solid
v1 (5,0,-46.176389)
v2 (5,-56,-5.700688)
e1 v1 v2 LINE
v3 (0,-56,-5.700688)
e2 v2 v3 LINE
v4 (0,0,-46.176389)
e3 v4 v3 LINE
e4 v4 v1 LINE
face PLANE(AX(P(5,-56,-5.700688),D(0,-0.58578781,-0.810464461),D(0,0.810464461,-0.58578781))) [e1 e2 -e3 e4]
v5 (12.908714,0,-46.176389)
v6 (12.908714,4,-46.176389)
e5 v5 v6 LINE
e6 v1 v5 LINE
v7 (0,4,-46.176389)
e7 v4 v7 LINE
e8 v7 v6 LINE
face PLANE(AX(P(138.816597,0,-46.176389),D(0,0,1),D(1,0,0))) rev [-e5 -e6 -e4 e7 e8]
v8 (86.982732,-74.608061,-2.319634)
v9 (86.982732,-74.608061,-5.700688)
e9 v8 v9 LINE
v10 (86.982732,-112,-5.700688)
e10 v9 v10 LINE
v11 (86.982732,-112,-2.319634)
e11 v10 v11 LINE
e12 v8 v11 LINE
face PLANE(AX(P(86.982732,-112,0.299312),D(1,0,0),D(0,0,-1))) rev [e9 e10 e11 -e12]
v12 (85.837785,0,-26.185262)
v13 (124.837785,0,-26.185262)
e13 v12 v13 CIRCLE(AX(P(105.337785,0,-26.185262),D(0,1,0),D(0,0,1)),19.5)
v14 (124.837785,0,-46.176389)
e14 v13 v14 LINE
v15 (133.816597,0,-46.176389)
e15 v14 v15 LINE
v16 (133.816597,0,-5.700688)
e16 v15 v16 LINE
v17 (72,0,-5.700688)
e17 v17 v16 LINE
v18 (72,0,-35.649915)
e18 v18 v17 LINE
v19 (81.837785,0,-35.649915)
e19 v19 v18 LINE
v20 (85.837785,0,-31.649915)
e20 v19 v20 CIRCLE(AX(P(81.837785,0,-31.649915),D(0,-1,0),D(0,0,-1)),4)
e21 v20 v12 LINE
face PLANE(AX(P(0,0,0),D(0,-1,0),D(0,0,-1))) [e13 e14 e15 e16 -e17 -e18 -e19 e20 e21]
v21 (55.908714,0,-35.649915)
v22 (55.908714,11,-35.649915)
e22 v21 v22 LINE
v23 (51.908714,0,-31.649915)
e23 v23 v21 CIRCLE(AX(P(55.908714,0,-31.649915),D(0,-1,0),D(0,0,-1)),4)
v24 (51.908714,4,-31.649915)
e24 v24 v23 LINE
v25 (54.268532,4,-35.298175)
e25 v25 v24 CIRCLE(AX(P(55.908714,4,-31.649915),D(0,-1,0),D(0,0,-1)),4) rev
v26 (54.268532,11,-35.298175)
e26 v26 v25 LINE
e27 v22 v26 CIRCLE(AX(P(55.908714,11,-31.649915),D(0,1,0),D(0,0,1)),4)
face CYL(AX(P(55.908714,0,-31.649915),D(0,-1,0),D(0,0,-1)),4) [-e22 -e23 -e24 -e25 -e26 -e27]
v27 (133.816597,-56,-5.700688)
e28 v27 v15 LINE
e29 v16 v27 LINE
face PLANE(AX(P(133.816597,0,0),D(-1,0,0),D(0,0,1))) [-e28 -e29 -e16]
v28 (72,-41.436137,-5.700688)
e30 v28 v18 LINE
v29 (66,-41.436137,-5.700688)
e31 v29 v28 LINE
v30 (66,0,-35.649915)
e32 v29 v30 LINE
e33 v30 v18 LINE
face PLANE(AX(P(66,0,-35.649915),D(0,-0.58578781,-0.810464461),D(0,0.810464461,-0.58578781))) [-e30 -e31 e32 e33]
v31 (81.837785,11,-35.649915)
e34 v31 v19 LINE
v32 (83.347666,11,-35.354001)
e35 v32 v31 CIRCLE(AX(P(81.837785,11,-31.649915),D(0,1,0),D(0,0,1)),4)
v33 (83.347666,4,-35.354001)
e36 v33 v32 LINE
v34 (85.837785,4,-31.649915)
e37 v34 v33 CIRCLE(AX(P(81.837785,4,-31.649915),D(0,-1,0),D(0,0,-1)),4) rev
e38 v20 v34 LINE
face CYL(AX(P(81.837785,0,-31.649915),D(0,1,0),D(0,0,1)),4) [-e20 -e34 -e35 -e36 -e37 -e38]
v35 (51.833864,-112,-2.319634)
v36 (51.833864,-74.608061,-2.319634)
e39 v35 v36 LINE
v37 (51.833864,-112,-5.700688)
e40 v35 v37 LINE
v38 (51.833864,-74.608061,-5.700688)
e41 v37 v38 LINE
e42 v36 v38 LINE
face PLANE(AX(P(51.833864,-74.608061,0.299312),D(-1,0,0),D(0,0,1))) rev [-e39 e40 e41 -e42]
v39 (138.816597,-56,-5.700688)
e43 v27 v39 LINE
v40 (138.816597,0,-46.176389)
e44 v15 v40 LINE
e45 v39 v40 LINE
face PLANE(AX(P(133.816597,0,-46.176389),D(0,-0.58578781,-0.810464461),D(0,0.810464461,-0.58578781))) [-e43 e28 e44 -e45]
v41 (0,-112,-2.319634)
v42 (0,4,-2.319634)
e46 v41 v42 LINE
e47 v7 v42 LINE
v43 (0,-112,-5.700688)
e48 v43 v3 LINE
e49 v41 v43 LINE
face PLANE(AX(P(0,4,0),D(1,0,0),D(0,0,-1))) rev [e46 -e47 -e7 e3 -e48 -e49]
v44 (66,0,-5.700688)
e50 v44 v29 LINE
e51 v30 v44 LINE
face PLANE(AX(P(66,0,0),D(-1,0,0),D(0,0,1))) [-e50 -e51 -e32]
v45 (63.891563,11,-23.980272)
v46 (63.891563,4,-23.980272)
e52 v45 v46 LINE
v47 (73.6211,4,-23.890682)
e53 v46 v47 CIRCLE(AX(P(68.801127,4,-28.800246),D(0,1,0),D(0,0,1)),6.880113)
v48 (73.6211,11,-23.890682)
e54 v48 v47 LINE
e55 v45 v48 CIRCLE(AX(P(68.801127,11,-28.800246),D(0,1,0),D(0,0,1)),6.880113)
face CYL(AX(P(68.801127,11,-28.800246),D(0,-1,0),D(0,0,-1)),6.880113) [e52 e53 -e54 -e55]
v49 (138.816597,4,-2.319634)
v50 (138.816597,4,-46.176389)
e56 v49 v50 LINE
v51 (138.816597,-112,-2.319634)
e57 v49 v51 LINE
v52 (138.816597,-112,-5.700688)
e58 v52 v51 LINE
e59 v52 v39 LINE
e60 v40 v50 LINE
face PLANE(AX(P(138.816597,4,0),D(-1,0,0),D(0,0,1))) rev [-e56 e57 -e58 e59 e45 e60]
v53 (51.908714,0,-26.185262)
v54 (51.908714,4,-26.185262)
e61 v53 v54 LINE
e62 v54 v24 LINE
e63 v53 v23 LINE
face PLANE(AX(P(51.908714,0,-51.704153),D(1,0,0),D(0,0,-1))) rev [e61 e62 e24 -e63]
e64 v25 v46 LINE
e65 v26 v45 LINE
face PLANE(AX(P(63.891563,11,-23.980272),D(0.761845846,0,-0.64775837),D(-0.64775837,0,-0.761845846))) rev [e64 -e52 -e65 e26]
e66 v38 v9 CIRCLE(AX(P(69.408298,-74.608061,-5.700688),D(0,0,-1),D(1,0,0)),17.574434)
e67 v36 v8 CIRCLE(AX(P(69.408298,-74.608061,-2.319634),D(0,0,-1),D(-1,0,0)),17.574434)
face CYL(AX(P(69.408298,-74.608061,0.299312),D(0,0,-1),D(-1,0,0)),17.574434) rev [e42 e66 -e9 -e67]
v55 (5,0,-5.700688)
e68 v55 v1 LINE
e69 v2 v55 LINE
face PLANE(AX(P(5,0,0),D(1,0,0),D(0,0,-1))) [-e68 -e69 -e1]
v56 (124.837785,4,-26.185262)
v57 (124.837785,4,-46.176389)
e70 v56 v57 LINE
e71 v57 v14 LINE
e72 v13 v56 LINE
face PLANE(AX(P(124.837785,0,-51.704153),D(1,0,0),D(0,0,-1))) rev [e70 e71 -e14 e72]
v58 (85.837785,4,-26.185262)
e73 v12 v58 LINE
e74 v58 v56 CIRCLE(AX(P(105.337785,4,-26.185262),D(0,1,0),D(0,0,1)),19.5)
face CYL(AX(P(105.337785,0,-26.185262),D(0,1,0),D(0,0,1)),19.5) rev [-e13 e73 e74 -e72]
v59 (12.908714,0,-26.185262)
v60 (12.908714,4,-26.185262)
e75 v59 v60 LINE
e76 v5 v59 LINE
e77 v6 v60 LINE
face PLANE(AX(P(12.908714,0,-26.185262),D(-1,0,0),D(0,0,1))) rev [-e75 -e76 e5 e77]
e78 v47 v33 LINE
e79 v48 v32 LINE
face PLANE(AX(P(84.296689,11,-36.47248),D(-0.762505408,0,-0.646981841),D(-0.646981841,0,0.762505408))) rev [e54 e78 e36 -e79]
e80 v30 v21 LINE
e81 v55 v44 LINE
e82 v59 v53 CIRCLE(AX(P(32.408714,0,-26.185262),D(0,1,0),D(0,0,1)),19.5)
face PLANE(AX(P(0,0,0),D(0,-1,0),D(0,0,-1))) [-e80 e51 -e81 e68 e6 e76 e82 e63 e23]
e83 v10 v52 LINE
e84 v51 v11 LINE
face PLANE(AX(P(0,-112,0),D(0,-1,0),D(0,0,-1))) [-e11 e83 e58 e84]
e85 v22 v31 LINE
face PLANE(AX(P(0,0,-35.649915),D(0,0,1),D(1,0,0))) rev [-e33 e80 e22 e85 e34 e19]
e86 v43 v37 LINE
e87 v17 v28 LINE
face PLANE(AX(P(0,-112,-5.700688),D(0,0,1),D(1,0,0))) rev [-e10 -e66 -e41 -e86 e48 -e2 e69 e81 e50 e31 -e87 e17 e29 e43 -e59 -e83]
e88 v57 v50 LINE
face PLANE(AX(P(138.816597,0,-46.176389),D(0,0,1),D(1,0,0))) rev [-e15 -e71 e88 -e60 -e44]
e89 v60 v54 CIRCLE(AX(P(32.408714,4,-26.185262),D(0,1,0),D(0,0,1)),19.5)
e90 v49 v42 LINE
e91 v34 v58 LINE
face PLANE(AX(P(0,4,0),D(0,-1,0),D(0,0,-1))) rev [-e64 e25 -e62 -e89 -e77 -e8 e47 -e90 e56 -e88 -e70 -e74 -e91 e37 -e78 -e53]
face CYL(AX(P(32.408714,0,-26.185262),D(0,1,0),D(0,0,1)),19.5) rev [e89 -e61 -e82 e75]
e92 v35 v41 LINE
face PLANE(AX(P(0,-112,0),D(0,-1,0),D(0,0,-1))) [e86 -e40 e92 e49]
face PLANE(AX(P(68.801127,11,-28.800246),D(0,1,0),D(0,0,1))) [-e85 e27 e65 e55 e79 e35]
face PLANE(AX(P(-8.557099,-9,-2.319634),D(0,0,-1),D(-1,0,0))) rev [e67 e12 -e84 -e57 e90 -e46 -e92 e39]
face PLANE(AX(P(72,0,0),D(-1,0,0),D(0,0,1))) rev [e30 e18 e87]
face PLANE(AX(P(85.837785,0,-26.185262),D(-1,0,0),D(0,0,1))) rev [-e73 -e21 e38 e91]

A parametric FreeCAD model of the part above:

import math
import FreeCAD as App
import Part
import Sketcher
Q = App.Units.Quantity


def edges_at(feature, points):
    """Names of the edges that pass closest to the given points."""
    edges = feature.Shape.Edges
    near = lambda p: min(range(len(edges)), key=lambda i: edges[i].distToShape(Part.Vertex(*p))[0])
    return sorted({f"Edge{near(p) + 1}" for p in points})

doc = App.newDocument("Part")
body = doc.addObject("PartDesign::Body", "Body")

sketch1 = body.newObject("Sketcher::SketchObject", "Sketch")
sketch1.AttachmentSupport = (doc.getObject("XZ_Plane"), [""])
sketch1.MapMode = "FlatFace"
sketch1.addGeometry(Part.LineSegment(App.Vector(0, -51.704153, 0), App.Vector(0, 0, 0)), False)
sketch1.addGeometry(Part.LineSegment(App.Vector(0, 0, 0), App.Vector(138.816597, 0, 0)), False)
sketch1.addGeometry(Part.LineSegment(App.Vector(138.816597, 0, 0), App.Vector(138.816597, -51.704153, 0)), False)
sketch1.addGeometry(Part.LineSegment(App.Vector(138.816597, -51.704153, 0), App.Vector(0, -51.704153, 0)), False)
sketch1.addConstraint(Sketcher.Constraint("Coincident", 0, 2, 1, 1))
sketch1.addConstraint(Sketcher.Constraint("Coincident", 1, 2, 2, 1))
sketch1.addConstraint(Sketcher.Constraint("Coincident", 2, 2, 3, 1))
sketch1.addConstraint(Sketcher.Constraint("Coincident", 3, 2, 0, 1))
sketch1.addConstraint(Sketcher.Constraint("Vertical", 0))
sketch1.addConstraint(Sketcher.Constraint("Horizontal", 1))
sketch1.addConstraint(Sketcher.Constraint("Vertical", 2))
sketch1.addConstraint(Sketcher.Constraint("Horizontal", 3))
sketch1.addConstraint(Sketcher.Constraint("Coincident", 0, 2, -1, 1))
sketch1.addConstraint(Sketcher.Constraint("DistanceX", 1, 1, 1, 2, Q("138.816597 mm")))
sketch1.addConstraint(Sketcher.Constraint("DistanceY", 0, 1, 0, 2, Q("51.704153 mm")))
pad1 = body.newObject("PartDesign::Pad", "Pad")
pad1.Profile = sketch1
pad1.Length = 4
pad1.Reversed = True

sketch2 = body.newObject("Sketcher::SketchObject", "Sketch001")
sketch2.AttachmentSupport = (doc.getObject("XZ_Plane"), [""])
sketch2.MapMode = "FlatFace"
sketch2.AttachmentOffset = App.Placement(App.Vector(0, 0, -4), App.Rotation())
sketch2.addGeometry(Part.Circle(App.Vector(32.408714, -26.185262, 0), App.Vector(0, 0, 1), 19.5), False)
sketch2.addGeometry(Part.Circle(App.Vector(105.337785, -26.185262, 0), App.Vector(0, 0, 1), 19.5), False)
sketch2.addConstraint(Sketcher.Constraint("Equal", 0, 1))
sketch2.addConstraint(Sketcher.Constraint("Horizontal", 0, 3, 1, 3))
sketch2.addConstraint(Sketcher.Constraint("Diameter", 0, Q("39 mm")))
sketch2.addConstraint(Sketcher.Constraint("DistanceY", 0, 3, -1, 1, Q("26.185262 mm")))
sketch2.addConstraint(Sketcher.Constraint("DistanceX", 0, 3, 1, 3, Q("72.929071 mm")))
sketch2.addConstraint(Sketcher.Constraint("DistanceX", -1, 1, 0, 3, Q("32.408714 mm")))
pocket1 = body.newObject("PartDesign::Pocket", "Pocket")
pocket1.Profile = sketch2
pocket1.Length = 4
pocket1.Reversed = True

sketch3 = body.newObject("Sketcher::SketchObject", "Sketch002")
sketch3.AttachmentSupport = (doc.getObject("XZ_Plane"), [""])
sketch3.MapMode = "FlatFace"
sketch3.AttachmentOffset = App.Placement(App.Vector(0, 0, -4), App.Rotation())
sketch3.addGeometry(Part.LineSegment(App.Vector(12.908714, -51.704153, 0), App.Vector(12.908714, -26.185262, 0)), False)
sketch3.addGeometry(Part.LineSegment(App.Vector(12.908714, -26.185262, 0), App.Vector(51.908714, -26.185262, 0)), False)
sketch3.addGeometry(Part.LineSegment(App.Vector(51.908714, -26.185262, 0), App.Vector(51.908714, -51.704153, 0)), False)
sketch3.addGeometry(Part.LineSegment(App.Vector(51.908714, -51.704153, 0), App.Vector(12.908714, -51.704153, 0)), False)
sketch3.addGeometry(Part.LineSegment(App.Vector(85.837785, -51.704153, 0), App.Vector(85.837785, -26.185262, 0)), False)
sketch3.addGeometry(Part.LineSegment(App.Vector(85.837785, -26.185262, 0), App.Vector(124.837785, -26.185262, 0)), False)
sketch3.addGeometry(Part.LineSegment(App.Vector(124.837785, -26.185262, 0), App.Vector(124.837785, -51.704153, 0)), False)
sketch3.addGeometry(Part.LineSegment(App.Vector(124.837785, -51.704153, 0), App.Vector(85.837785, -51.704153, 0)), False)
sketch3.addConstraint(Sketcher.Constraint("Coincident", 0, 2, 1, 1))
sketch3.addConstraint(Sketcher.Constraint("Coincident", 1, 2, 2, 1))
sketch3.addConstraint(Sketcher.Constraint("Coincident", 2, 2, 3, 1))
sketch3.addConstraint(Sketcher.Constraint("Coincident", 3, 2, 0, 1))
sketch3.addConstraint(Sketcher.Constraint("Coincident", 4, 2, 5, 1))
sketch3.addConstraint(Sketcher.Constraint("Coincident", 5, 2, 6, 1))
sketch3.addConstraint(Sketcher.Constraint("Coincident", 6, 2, 7, 1))
sketch3.addConstraint(Sketcher.Constraint("Coincident", 7, 2, 4, 1))
sketch3.addConstraint(Sketcher.Constraint("Vertical", 0))
sketch3.addConstraint(Sketcher.Constraint("Horizontal", 1))
sketch3.addConstraint(Sketcher.Constraint("Vertical", 2))
sketch3.addConstraint(Sketcher.Constraint("Horizontal", 3))
sketch3.addConstraint(Sketcher.Constraint("Vertical", 4))
sketch3.addConstraint(Sketcher.Constraint("Horizontal", 5))
sketch3.addConstraint(Sketcher.Constraint("Vertical", 6))
sketch3.addConstraint(Sketcher.Constraint("Horizontal", 7))
sketch3.addConstraint(Sketcher.Constraint("Horizontal", 1, 2, 4, 2))
sketch3.addConstraint(Sketcher.Constraint("Horizontal", 3, 2, 6, 2))
sketch3.addConstraint(Sketcher.Constraint("Equal", 3, 5))
sketch3.addConstraint(Sketcher.Constraint("DistanceX", 1, 1, 1, 2, Q("39 mm")))
sketch3.addConstraint(Sketcher.Constraint("DistanceY", 0, 1, 0, 2, Q("25.518891 mm")))
sketch3.addConstraint(Sketcher.Constraint("DistanceY", 0, 2, -1, 1, Q("26.185262 mm")))
sketch3.addConstraint(Sketcher.Constraint("DistanceX", 1, 2, 4, 2, Q("33.929071 mm")))
sketch3.addConstraint(Sketcher.Constraint("DistanceX", -1, 1, 0, 2, Q("12.908714 mm")))
pocket2 = body.newObject("PartDesign::Pocket", "Pocket001")
pocket2.Profile = sketch3
pocket2.Length = 4
pocket2.Reversed = True

sketch4 = body.newObject("Sketcher::SketchObject", "Sketch003")
sketch4.AttachmentSupport = (doc.getObject("XZ_Plane"), [""])
sketch4.MapMode = "FlatFace"
sketch4.AttachmentOffset = App.Placement(App.Vector(0, 0, -4), App.Rotation())
sketch4.addGeometry(Part.LineSegment(App.Vector(0, -51.704153, 0), App.Vector(0, -46.176389, 0)), False)
sketch4.addGeometry(Part.LineSegment(App.Vector(0, -46.176389, 0), App.Vector(138.816597, -46.176389, 0)), False)
sketch4.addGeometry(Part.LineSegment(App.Vector(138.816597, -46.176389, 0), App.Vector(138.816597, -51.704153, 0)), False)
sketch4.addGeometry(Part.LineSegment(App.Vector(138.816597, -51.704153, 0), App.Vector(0, -51.704153, 0)), False)
sketch4.addConstraint(Sketcher.Constraint("Coincident", 0, 2, 1, 1))
sketch4.addConstraint(Sketcher.Constraint("Coincident", 1, 2, 2, 1))
sketch4.addConstraint(Sketcher.Constraint("Coincident", 2, 2, 3, 1))
sketch4.addConstraint(Sketcher.Constraint("Coincident", 3, 2, 0, 1))
sketch4.addConstraint(Sketcher.Constraint("Vertical", 0))
sketch4.addConstraint(Sketcher.Constraint("Horizontal", 1))
sketch4.addConstraint(Sketcher.Constraint("Vertical", 2))
sketch4.addConstraint(Sketcher.Constraint("Horizontal", 3))
sketch4.addConstraint(Sketcher.Constraint("PointOnObject", 0, 2, -2))
sketch4.addConstraint(Sketcher.Constraint("DistanceX", 1, 1, 1, 2, Q("138.816597 mm")))
sketch4.addConstraint(Sketcher.Constraint("DistanceY", 0, 1, 0, 2, Q("5.527763 mm")))
sketch4.addConstraint(Sketcher.Constraint("DistanceY", 0, 2, -1, 1, Q("46.176389 mm")))
pocket3 = body.newObject("PartDesign::Pocket", "Pocket002")
pocket3.Profile = sketch4
pocket3.Length = 4
pocket3.Reversed = True

sketch5 = body.newObject("Sketcher::SketchObject", "Sketch004")
sketch5.AttachmentSupport = (doc.getObject("XZ_Plane"), [""])
sketch5.MapMode = "FlatFace"
sketch5.AttachmentOffset = App.Placement(App.Vector(0, 0, -4), App.Rotation())
sketch5.addGeometry(Part.LineSegment(App.Vector(49.90401, -40.387296, 0), App.Vector(51.928251, -38.363055, 0)), False)
sketch5.addGeometry(Part.LineSegment(App.Vector(51.928251, -38.363055, 0), App.Vector(53.389948, -36.649915, 0)), False)
sketch5.addGeometry(Part.LineSegment(App.Vector(53.389948, -36.649915, 0), App.Vector(84.416557, -36.649915, 0)), False)
sketch5.addGeometry(Part.LineSegment(App.Vector(84.416557, -36.649915, 0), App.Vector(85.857322, -38.348254, 0)), False)
sketch5.addGeometry(Part.LineSegment(App.Vector(85.857322, -38.348254, 0), App.Vector(87.953832, -40.819568, 0)), False)
sketch5.addGeometry(Part.LineSegment(App.Vector(87.953832, -40.819568, 0), App.Vector(88.230996, -41.29784, 0)), False)
sketch5.addGeometry(Part.LineSegment(App.Vector(88.230996, -41.29784, 0), App.Vector(88.976344, -49.123988, 0)), False)
sketch5.addGeometry(Part.LineSegment(App.Vector(88.976344, -49.123988, 0), App.Vector(49.90401, -49.123988, 0)), False)
sketch5.addGeometry(Part.LineSegment(App.Vector(49.90401, -49.123988, 0), App.Vector(49.90401, -40.387296, 0)), False)
sketch5.addConstraint(Sketcher.Constraint("Coincident", 0, 2, 1, 1))
sketch5.addConstraint(Sketcher.Constraint("Coincident", 1, 2, 2, 1))
sketch5.addConstraint(Sketcher.Constraint("Coincident", 2, 2, 3, 1))
sketch5.addConstraint(Sketcher.Constraint("Coincident", 3, 2, 4, 1))
sketch5.addConstraint(Sketcher.Constraint("Coincident", 4, 2, 5, 1))
sketch5.addConstraint(Sketcher.Constraint("Coincident", 5, 2, 6, 1))
sketch5.addConstraint(Sketcher.Constraint("Coincident", 6, 2, 7, 1))
sketch5.addConstraint(Sketcher.Constraint("Coincident", 7, 2, 8, 1))
sketch5.addConstraint(Sketcher.Constraint("Coincident", 8, 2, 0, 1))
sketch5.addConstraint(Sketcher.Constraint("Horizontal", 2))
sketch5.addConstraint(Sketcher.Constraint("Horizontal", 7))
sketch5.addConstraint(Sketcher.Constraint("Vertical", 8))
sketch5.addConstraint(Sketcher.Constraint("Parallel", 3, 4))
sketch5.addConstraint(Sketcher.Constraint("Angle", 0, Q("45 deg")))
sketch5.addConstraint(Sketcher.Constraint("DistanceX", 2, 1, 2, 2, Q("31.026609 mm")))
sketch5.addConstraint(Sketcher.Constraint("DistanceY", 8, 1, 8, 2, Q("8.736692 mm")))
sketch5.addConstraint(Sketcher.Constraint("DistanceY", 0, 2, 3, 2, Q("0.014802 mm")))
sketch5.addConstraint(Sketcher.Constraint("Distance", 0, Q("2.862708 mm")))
sketch5.addConstraint(Sketcher.Constraint("Distance", 1, Q("2.251979 mm")))
sketch5.addConstraint(Sketcher.Constraint("Distance", 3, Q("2.227141 mm")))
sketch5.addConstraint(Sketcher.Constraint("Distance", 6, Q("7.861561 mm")))
sketch5.addConstraint(Sketcher.Constraint("DistanceX", 7, 2, 7, 1, Q("39.072334 mm")))
sketch5.addConstraint(Sketcher.Constraint("DistanceX", -1, 1, 0, 2, Q("51.928251 mm")))
sketch5.addConstraint(Sketcher.Constraint("DistanceX", -1, 1, 1, 2, Q("53.389948 mm")))
sketch5.addConstraint(Sketcher.Constraint("DistanceY", 4, 2, -1, 1, Q("40.819568 mm")))
sketch5.addConstraint(Sketcher.Constraint("DistanceY", 5, 2, -1, 1, Q("41.29784 mm")))
sketch5.addConstraint(Sketcher.Constraint("DistanceX", 3, 2, 4, 2, Q("2.09651 mm")))
pocket4 = body.newObject("PartDesign::Pocket", "Pocket003")
pocket4.Profile = sketch5
pocket4.Length = 4
pocket4.Reversed = True

sketch6 = body.newObject("Sketcher::SketchObject", "Sketch005")
sketch6.AttachmentSupport = (doc.getObject("XZ_Plane"), [""])
sketch6.MapMode = "FlatFace"
sketch6.AttachmentOffset = App.Placement(App.Vector(0, 0, -4), App.Rotation())
sketch6.addGeometry(Part.LineSegment(App.Vector(84.296689, -36.47248, 0), App.Vector(53.270081, -36.47248, 0)), False)
sketch6.addGeometry(Part.LineSegment(App.Vector(53.270081, -36.47248, 0), App.Vector(63.891563, -23.980272, 0)), False)
sketch6.addGeometry(Part.ArcOfCircle(Part.Circle(App.Vector(68.801127, -28.800246, 0), App.Vector(0, 0, 1), 6.880113), math.radians(45.527567), math.radians(135.527567)), False)
sketch6.addGeometry(Part.LineSegment(App.Vector(73.6211, -23.890682, 0), App.Vector(84.296689, -36.47248, 0)), False)
sketch6.addConstraint(Sketcher.Constraint("Coincident", 0, 2, 1, 1))
sketch6.addConstraint(Sketcher.Constraint("Coincident", 1, 2, 2, 2))
sketch6.addConstraint(Sketcher.Constraint("Coincident", 2, 1, 3, 1))
sketch6.addConstraint(Sketcher.Constraint("Coincident", 3, 2, 0, 1))
sketch6.addConstraint(Sketcher.Constraint("Horizontal", 0))
sketch6.addConstraint(Sketcher.Constraint("Radius", 2, Q("6.880113 mm")))
sketch6.addConstraint(Sketcher.Constraint("Distance", 3, Q("16.500601 mm")))
sketch6.addConstraint(Sketcher.Constraint("DistanceX", 0, 2, 0, 1, Q("31.026609 mm")))
sketch6.addConstraint(Sketcher.Constraint("DistanceX", -1, 1, 2, 1, Q("73.6211 mm")))
sketch6.addConstraint(Sketcher.Constraint("Distance", 1, Q("16.39729 mm")))
sketch6.addConstraint(Sketcher.Constraint("DistanceX", -1, 1, 0, 2, Q("53.270081 mm")))
sketch6.addConstraint(Sketcher.Constraint("DistanceY", 0, 2, -1, 1, Q("36.47248 mm")))
sketch6.addConstraint(Sketcher.Constraint("DistanceY", 1, 2, 2, 1, Q("0.08959 mm")))
pad2 = body.newObject("PartDesign::Pad", "Pad001")
pad2.Profile = sketch6
pad2.Length = 7
pad2.Reversed = True

sketch7 = body.newObject("Sketcher::SketchObject", "Sketch006")
sketch7.AttachmentSupport = (doc.getObject("XY_Plane"), [""])
sketch7.MapMode = "FlatFace"
sketch7.AttachmentOffset = App.Placement(App.Vector(0, 0, -36.649915), App.Rotation())
sketch7.addGeometry(Part.LineSegment(App.Vector(87.522877, 14.567096, 0), App.Vector(87.522877, -4.15692, 0)), False)
sketch7.addGeometry(Part.LineSegment(App.Vector(87.522877, -4.15692, 0), App.Vector(46.312542, -4.15692, 0)), False)
sketch7.addGeometry(Part.LineSegment(App.Vector(46.312542, -4.15692, 0), App.Vector(46.312542, 14.567096, 0)), False)
sketch7.addGeometry(Part.LineSegment(App.Vector(46.312542, 14.567096, 0), App.Vector(87.522877, 14.567096, 0)), False)
sketch7.addConstraint(Sketcher.Constraint("Coincident", 0, 2, 1, 1))
sketch7.addConstraint(Sketcher.Constraint("Coincident", 1, 2, 2, 1))
sketch7.addConstraint(Sketcher.Constraint("Coincident", 2, 2, 3, 1))
sketch7.addConstraint(Sketcher.Constraint("Coincident", 3, 2, 0, 1))
sketch7.addConstraint(Sketcher.Constraint("Vertical", 0))
sketch7.addConstraint(Sketcher.Constraint("Horizontal", 1))
sketch7.addConstraint(Sketcher.Constraint("Vertical", 2))
sketch7.addConstraint(Sketcher.Constraint("Horizontal", 3))
sketch7.addConstraint(Sketcher.Constraint("DistanceX", 1, 2, 1, 1, Q("41.210335 mm")))
sketch7.addConstraint(Sketcher.Constraint("DistanceY", 0, 2, 0, 1, Q("18.724016 mm")))
sketch7.addConstraint(Sketcher.Constraint("DistanceY", 0, 2, -1, 1, Q("4.15692 mm")))
sketch7.addConstraint(Sketcher.Constraint("DistanceX", -1, 1, 1, 2, Q("46.312542 mm")))
pocket5 = body.newObject("PartDesign::Pocket", "Pocket004")
pocket5.Profile = sketch7
pocket5.Type = "TwoLengths"
pocket5.Length = 10
pocket5.Length2 = 1
doc.recompute()

fillet = body.newObject("PartDesign::Fillet", "Fillet")
fillet.Base = (pocket5, edges_at(pocket5, [(85.838, 2, -35.65), (51.909, 2, -35.65)]))
fillet.Radius = 4

sketch8 = body.newObject("Sketcher::SketchObject", "Sketch007")
sketch8.AttachmentSupport = (doc.getObject("XZ_Plane"), [""])
sketch8.MapMode = "FlatFace"
sketch8.AttachmentOffset = App.Placement(App.Vector(0, 0, -4), App.Rotation())
sketch8.addGeometry(Part.LineSegment(App.Vector(-8.557099, -2.319634, 0), App.Vector(-8.557099, 5.89894, 0)), False)
sketch8.addGeometry(Part.LineSegment(App.Vector(-8.557099, 5.89894, 0), App.Vector(150.70555, 5.89894, 0)), False)
sketch8.addGeometry(Part.LineSegment(App.Vector(150.70555, 5.89894, 0), App.Vector(150.70555, -2.319634, 0)), False)
sketch8.addGeometry(Part.LineSegment(App.Vector(150.70555, -2.319634, 0), App.Vector(-8.557099, -2.319634, 0)), False)
sketch8.addConstraint(Sketcher.Constraint("Coincident", 0, 2, 1, 1))
sketch8.addConstraint(Sketcher.Constraint("Coincident", 1, 2, 2, 1))
sketch8.addConstraint(Sketcher.Constraint("Coincident", 2, 2, 3, 1))
sketch8.addConstraint(Sketcher.Constraint("Coincident", 3, 2, 0, 1))
sketch8.addConstraint(Sketcher.Constraint("Vertical", 0))
sketch8.addConstraint(Sketcher.Constraint("Horizontal", 1))
sketch8.addConstraint(Sketcher.Constraint("Vertical", 2))
sketch8.addConstraint(Sketcher.Constraint("Horizontal", 3))
sketch8.addConstraint(Sketcher.Constraint("DistanceX", 1, 1, 1, 2, Q("159.262649 mm")))
sketch8.addConstraint(Sketcher.Constraint("DistanceX", 0, 2, -1, 1, Q("8.557099 mm")))
sketch8.addConstraint(Sketcher.Constraint("DistanceY", 0, 1, 0, 2, Q("8.218575 mm")))
sketch8.addConstraint(Sketcher.Constraint("DistanceY", -1, 1, 0, 2, Q("5.89894 mm")))
pocket6 = body.newObject("PartDesign::Pocket", "Pocket005")
pocket6.Profile = sketch8
pocket6.Length = 13
pocket6.Reversed = True

sketch9 = body.newObject("Sketcher::SketchObject", "Sketch008")
sketch9.AttachmentSupport = (doc.getObject("XZ_Plane"), [""])
sketch9.MapMode = "FlatFace"
sketch9.addGeometry(Part.LineSegment(App.Vector(138.816597, -5.700688, 0), App.Vector(138.816597, -2.319634, 0)), False)
sketch9.addGeometry(Part.LineSegment(App.Vector(138.816597, -2.319634, 0), App.Vector(0, -2.319634, 0)), False)
sketch9.addGeometry(Part.LineSegment(App.Vector(0, -2.319634, 0), App.Vector(0, -5.700688, 0)), False)
sketch9.addGeometry(Part.LineSegment(App.Vector(0, -5.700688, 0), App.Vector(138.816597, -5.700688, 0)), False)
sketch9.addConstraint(Sketcher.Constraint("Coincident", 0, 2, 1, 1))
sketch9.addConstraint(Sketcher.Constraint("Coincident", 1, 2, 2, 1))
sketch9.addConstraint(Sketcher.Constraint("Coincident", 2, 2, 3, 1))
sketch9.addConstraint(Sketcher.Constraint("Coincident", 3, 2, 0, 1))
sketch9.addConstraint(Sketcher.Constraint("Vertical", 0))
sketch9.addConstraint(Sketcher.Constraint("Horizontal", 1))
sketch9.addConstraint(Sketcher.Constraint("Vertical", 2))
sketch9.addConstraint(Sketcher.Constraint("Horizontal", 3))
sketch9.addConstraint(Sketcher.Constraint("PointOnObject", 1, 2, -2))
sketch9.addConstraint(Sketcher.Constraint("DistanceX", 1, 2, 1, 1, Q("138.816597 mm")))
sketch9.addConstraint(Sketcher.Constraint("DistanceY", 0, 1, 0, 2, Q("3.381054 mm")))
sketch9.addConstraint(Sketcher.Constraint("DistanceY", 2, 2, -1, 1, Q("5.700688 mm")))
pad3 = body.newObject("PartDesign::Pad", "Pad002")
pad3.Profile = sketch9
pad3.Length = 112

sketch10 = body.newObject("Sketcher::SketchObject", "Sketch009")
sketch10.AttachmentSupport = (doc.getObject("XY_Plane"), [""])
sketch10.MapMode = "FlatFace"
sketch10.AttachmentOffset = App.Placement(App.Vector(0, 0, -5.700688), App.Rotation())
sketch10.addGeometry(Part.LineSegment(App.Vector(51.833864, -112, 0), App.Vector(51.833864, -74.608061, 0)), False)
sketch10.addGeometry(Part.ArcOfCircle(Part.Circle(App.Vector(69.408298, -74.608061, 0), App.Vector(0, 0, 1), 17.574434), math.radians(0), math.radians(180)), False)
sketch10.addGeometry(Part.LineSegment(App.Vector(86.982732, -74.608061, 0), App.Vector(86.982732, -112, 0)), False)
sketch10.addGeometry(Part.LineSegment(App.Vector(86.982732, -112, 0), App.Vector(51.833864, -112, 0)), False)
sketch10.addConstraint(Sketcher.Constraint("Tangent", 0, 2, 1, 2))
sketch10.addConstraint(Sketcher.Constraint("Tangent", 1, 1, 2, 1))
sketch10.addConstraint(Sketcher.Constraint("Coincident", 2, 2, 3, 1))
sketch10.addConstraint(Sketcher.Constraint("Coincident", 3, 2, 0, 1))
sketch10.addConstraint(Sketcher.Constraint("Vertical", 0))
sketch10.addConstraint(Sketcher.Constraint("Vertical", 2))
sketch10.addConstraint(Sketcher.Constraint("Horizontal", 3))
sketch10.addConstraint(Sketcher.Constraint("DistanceY", 2, 2, -1, 1, Q("112 mm")))
sketch10.addConstraint(Sketcher.Constraint("Radius", 1, Q("17.574434 mm")))
sketch10.addConstraint(Sketcher.Constraint("DistanceY", 0, 1, 0, 2, Q("37.391939 mm")))
sketch10.addConstraint(Sketcher.Constraint("DistanceX", -1, 1, 1, 3, Q("69.408298 mm")))
pocket7 = body.newObject("PartDesign::Pocket", "Pocket006")
pocket7.Profile = sketch10
pocket7.Length = 6
pocket7.Reversed = True

sketch11 = body.newObject("Sketcher::SketchObject", "Sketch010")
sketch11.AttachmentSupport = (doc.getObject("YZ_Plane"), [""])
sketch11.MapMode = "FlatFace"
sketch11.addGeometry(Part.LineSegment(App.Vector(0, -5.700688, 0), App.Vector(0, -46.176389, 0)), False)
sketch11.addGeometry(Part.LineSegment(App.Vector(0, -46.176389, 0), App.Vector(-56, -5.700688, 0)), False)
sketch11.addGeometry(Part.LineSegment(App.Vector(-56, -5.700688, 0), App.Vector(0, -5.700688, 0)), False)
sketch11.addConstraint(Sketcher.Constraint("Coincident", 0, 2, 1, 1))
sketch11.addConstraint(Sketcher.Constraint("Coincident", 1, 2, 2, 1))
sketch11.addConstraint(Sketcher.Constraint("Coincident", 2, 2, 0, 1))
sketch11.addConstraint(Sketcher.Constraint("Vertical", 0))
sketch11.addConstraint(Sketcher.Constraint("Horizontal", 2))
sketch11.addConstraint(Sketcher.Constraint("PointOnObject", 0, 2, -2))
sketch11.addConstraint(Sketcher.Constraint("DistanceX", 2, 1, 2, 2, Q("56 mm")))
sketch11.addConstraint(Sketcher.Constraint("DistanceY", 0, 2, 0, 1, Q("40.475701 mm")))
sketch11.addConstraint(Sketcher.Constraint("DistanceY", 0, 2, -1, 1, Q("46.176389 mm")))
pad4 = body.newObject("PartDesign::Pad", "Pad003")
pad4.Profile = sketch11
pad4.Length = 5

sketch12 = body.newObject("Sketcher::SketchObject", "Sketch011")
sketch12.AttachmentSupport = (doc.getObject("YZ_Plane"), [""])
sketch12.MapMode = "FlatFace"
sketch12.AttachmentOffset = App.Placement(App.Vector(0, 0, 138.816597), App.Rotation())
sketch12.addGeometry(Part.LineSegment(App.Vector(0, -46.176389, 0), App.Vector(0, -5.700688, 0)), False)
sketch12.addGeometry(Part.LineSegment(App.Vector(0, -5.700688, 0), App.Vector(-56, -5.700688, 0)), False)
sketch12.addGeometry(Part.LineSegment(App.Vector(-56, -5.700688, 0), App.Vector(0, -46.176389, 0)), False)
sketch12.addConstraint(Sketcher.Constraint("Coincident", 0, 2, 1, 1))
sketch12.addConstraint(Sketcher.Constraint("Coincident", 1, 2, 2, 1))
sketch12.addConstraint(Sketcher.Constraint("Coincident", 2, 2, 0, 1))
sketch12.addConstraint(Sketcher.Constraint("Vertical", 0))
sketch12.addConstraint(Sketcher.Constraint("Horizontal", 1))
sketch12.addConstraint(Sketcher.Constraint("PointOnObject", 0, 2, -2))
sketch12.addConstraint(Sketcher.Constraint("DistanceX", 1, 2, 1, 1, Q("56 mm")))
sketch12.addConstraint(Sketcher.Constraint("DistanceY", 0, 1, 0, 2, Q("40.475701 mm")))
sketch12.addConstraint(Sketcher.Constraint("DistanceY", 0, 2, -1, 1, Q("5.700688 mm")))
pad5 = body.newObject("PartDesign::Pad", "Pad004")
pad5.Profile = sketch12
pad5.Length = 5
pad5.Reversed = True

sketch13 = body.newObject("Sketcher::SketchObject", "Sketch012")
sketch13.AttachmentSupport = (doc.getObject("YZ_Plane"), [""])
sketch13.MapMode = "FlatFace"
sketch13.AttachmentOffset = App.Placement(App.Vector(0, 0, 69), App.Rotation())
sketch13.addGeometry(Part.LineSegment(App.Vector(0, -35.649915, 0), App.Vector(0, -5.700688, 0)), False)
sketch13.addGeometry(Part.LineSegment(App.Vector(0, -5.700688, 0), App.Vector(-41.436137, -5.700688, 0)), False)
sketch13.addGeometry(Part.LineSegment(App.Vector(-41.436137, -5.700688, 0), App.Vector(0, -35.649915, 0)), False)
sketch13.addConstraint(Sketcher.Constraint("Coincident", 0, 2, 1, 1))
sketch13.addConstraint(Sketcher.Constraint("Coincident", 1, 2, 2, 1))
sketch13.addConstraint(Sketcher.Constraint("Coincident", 2, 2, 0, 1))
sketch13.addConstraint(Sketcher.Constraint("Vertical", 0))
sketch13.addConstraint(Sketcher.Constraint("Horizontal", 1))
sketch13.addConstraint(Sketcher.Constraint("PointOnObject", 0, 2, -2))
sketch13.addConstraint(Sketcher.Constraint("Distance", 2, Q("51.126409 mm")))
sketch13.addConstraint(Sketcher.Constraint("DistanceX", 1, 2, 1, 1, Q("41.436137 mm")))
sketch13.addConstraint(Sketcher.Constraint("DistanceY", 0, 2, -1, 1, Q("5.700688 mm")))
pad6 = body.newObject("PartDesign::Pad", "Pad005")
pad6.Profile = sketch13
pad6.Type = "TwoLengths"
pad6.Length = 3
pad6.Length2 = 3

doc.recompute()
